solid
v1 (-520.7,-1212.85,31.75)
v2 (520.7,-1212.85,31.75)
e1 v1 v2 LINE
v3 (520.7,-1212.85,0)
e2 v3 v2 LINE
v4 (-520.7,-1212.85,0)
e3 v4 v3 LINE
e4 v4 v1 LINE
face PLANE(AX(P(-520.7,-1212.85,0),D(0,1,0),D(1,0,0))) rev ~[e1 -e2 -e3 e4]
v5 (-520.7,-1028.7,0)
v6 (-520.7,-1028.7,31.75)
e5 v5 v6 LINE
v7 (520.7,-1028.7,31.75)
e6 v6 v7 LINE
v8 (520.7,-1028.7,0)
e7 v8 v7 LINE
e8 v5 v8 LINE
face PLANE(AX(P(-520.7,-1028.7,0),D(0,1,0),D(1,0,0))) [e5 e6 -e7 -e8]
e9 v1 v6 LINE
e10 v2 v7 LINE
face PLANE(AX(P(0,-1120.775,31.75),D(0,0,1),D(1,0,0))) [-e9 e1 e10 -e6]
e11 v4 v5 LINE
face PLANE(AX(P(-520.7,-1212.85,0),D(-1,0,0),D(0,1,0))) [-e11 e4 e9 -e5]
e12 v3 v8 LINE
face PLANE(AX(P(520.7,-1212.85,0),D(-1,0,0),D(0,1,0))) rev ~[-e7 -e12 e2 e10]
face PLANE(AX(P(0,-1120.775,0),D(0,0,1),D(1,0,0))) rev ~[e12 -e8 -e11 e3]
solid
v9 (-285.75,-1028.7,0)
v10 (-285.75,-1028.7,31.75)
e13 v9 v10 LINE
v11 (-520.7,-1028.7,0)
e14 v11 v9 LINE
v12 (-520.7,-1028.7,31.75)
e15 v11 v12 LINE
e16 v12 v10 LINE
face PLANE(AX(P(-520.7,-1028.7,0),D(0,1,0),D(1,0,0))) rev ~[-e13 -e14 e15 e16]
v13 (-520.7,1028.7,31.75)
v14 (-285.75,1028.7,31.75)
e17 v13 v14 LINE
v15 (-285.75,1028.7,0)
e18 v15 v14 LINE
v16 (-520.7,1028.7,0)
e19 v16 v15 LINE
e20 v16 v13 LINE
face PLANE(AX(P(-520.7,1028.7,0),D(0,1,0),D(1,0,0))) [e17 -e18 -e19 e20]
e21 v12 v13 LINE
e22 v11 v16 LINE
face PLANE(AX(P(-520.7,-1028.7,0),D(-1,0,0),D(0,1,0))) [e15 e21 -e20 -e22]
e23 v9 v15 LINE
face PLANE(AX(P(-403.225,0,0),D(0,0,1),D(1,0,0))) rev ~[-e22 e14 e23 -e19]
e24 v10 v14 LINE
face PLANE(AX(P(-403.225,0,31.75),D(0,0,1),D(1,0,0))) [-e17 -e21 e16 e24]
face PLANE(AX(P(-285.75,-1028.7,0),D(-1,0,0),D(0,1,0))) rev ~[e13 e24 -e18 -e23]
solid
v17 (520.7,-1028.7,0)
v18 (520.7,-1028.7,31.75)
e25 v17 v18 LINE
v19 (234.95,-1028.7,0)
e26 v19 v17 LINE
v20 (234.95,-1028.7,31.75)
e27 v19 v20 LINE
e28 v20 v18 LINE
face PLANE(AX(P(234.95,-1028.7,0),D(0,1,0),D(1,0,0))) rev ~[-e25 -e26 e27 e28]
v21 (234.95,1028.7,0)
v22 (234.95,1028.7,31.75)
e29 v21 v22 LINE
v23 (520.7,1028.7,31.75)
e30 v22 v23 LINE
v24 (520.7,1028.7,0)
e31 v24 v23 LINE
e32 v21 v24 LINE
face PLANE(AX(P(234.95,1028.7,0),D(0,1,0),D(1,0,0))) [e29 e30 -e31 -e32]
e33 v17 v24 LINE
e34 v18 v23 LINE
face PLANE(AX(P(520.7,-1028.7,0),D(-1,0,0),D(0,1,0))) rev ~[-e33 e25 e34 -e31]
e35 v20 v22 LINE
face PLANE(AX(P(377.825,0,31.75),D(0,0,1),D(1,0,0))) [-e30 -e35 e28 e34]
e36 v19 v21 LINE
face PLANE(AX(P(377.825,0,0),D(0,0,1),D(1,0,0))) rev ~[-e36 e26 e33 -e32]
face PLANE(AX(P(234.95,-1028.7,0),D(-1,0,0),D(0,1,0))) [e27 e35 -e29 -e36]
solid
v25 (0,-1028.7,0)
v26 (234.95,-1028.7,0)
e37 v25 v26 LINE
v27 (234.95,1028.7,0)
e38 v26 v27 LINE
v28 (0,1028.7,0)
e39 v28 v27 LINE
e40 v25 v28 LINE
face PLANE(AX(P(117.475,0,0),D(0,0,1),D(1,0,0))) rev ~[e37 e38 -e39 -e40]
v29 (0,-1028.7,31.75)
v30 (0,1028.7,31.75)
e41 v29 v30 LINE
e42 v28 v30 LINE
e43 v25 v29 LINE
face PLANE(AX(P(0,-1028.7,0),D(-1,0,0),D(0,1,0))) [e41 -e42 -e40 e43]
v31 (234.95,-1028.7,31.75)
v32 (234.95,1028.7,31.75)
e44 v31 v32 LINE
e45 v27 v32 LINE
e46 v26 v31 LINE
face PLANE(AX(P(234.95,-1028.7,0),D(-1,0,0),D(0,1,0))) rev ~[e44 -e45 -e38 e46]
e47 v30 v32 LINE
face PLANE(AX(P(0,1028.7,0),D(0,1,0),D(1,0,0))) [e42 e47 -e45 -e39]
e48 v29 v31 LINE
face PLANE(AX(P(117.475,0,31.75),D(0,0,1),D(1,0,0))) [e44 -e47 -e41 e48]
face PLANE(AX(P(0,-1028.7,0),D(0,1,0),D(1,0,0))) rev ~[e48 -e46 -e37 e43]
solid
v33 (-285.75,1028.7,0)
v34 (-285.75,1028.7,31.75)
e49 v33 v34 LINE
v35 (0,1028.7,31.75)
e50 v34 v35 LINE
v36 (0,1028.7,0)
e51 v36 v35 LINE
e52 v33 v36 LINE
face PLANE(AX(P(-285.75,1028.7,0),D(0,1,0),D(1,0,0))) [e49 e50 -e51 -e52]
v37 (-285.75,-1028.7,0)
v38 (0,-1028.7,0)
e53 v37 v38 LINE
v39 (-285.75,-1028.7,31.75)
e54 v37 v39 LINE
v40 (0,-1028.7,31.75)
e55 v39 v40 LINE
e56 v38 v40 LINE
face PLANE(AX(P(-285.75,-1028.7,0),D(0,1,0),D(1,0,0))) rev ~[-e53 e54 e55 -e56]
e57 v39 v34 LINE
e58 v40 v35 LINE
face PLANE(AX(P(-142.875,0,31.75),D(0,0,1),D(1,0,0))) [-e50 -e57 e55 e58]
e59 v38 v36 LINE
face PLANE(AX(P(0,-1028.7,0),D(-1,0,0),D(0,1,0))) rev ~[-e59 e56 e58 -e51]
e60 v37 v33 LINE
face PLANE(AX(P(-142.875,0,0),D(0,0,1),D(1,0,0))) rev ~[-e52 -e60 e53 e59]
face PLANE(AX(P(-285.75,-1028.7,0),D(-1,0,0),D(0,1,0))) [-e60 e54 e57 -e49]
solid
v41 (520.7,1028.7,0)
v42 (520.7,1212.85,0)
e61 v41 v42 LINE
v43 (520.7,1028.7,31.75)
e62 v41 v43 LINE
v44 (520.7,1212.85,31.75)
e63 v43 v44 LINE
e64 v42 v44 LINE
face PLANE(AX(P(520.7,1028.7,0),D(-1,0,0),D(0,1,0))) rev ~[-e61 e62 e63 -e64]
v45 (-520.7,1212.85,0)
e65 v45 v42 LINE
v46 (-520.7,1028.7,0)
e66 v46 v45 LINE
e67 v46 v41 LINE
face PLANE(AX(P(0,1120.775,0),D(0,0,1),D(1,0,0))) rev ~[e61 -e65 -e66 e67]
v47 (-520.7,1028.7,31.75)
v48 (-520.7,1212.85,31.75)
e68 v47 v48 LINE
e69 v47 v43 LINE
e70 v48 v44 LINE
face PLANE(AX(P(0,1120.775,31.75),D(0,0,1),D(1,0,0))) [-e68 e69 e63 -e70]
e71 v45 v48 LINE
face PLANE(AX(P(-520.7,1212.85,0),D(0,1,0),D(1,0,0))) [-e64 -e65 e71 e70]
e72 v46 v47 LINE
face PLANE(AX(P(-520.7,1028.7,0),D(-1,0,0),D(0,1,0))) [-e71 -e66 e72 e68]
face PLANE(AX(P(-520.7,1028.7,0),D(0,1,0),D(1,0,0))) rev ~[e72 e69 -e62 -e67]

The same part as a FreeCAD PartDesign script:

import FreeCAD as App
import Part
import Sketcher
from FreeCAD import Vector
Q = App.Units.Quantity


def add_polygon(sketch, points):
    """Adds a closed chain of lines whose ends are joined by coincident constraints."""
    first, n = sketch.GeometryCount, len(points)
    for a, b in zip(points, points[1:] + points[:1]):
        sketch.addGeometry(Part.LineSegment(App.Vector(*a, 0), App.Vector(*b, 0)), False)
    for i in range(n):
        sketch.addConstraint(Sketcher.Constraint("Coincident", first + i, 2, first + (i + 1) % n, 1))

doc = App.newDocument("Part")
body = doc.addObject("PartDesign::Body", "Body")

sketch1 = body.newObject("Sketcher::SketchObject", "Sketch")
sketch1.AttachmentSupport = (doc.getObject("XY_Plane"), [""])
sketch1.MapMode = "FlatFace"
add_polygon(sketch1, [(-285.75, 1028.7), (-285.75, -1028.7), (0, -1028.7), (0, 1028.7)])
sketch1.addConstraint(Sketcher.Constraint("Vertical", 0))
sketch1.addConstraint(Sketcher.Constraint("Horizontal", 1))
sketch1.addConstraint(Sketcher.Constraint("Vertical", 2))
sketch1.addConstraint(Sketcher.Constraint("Horizontal", 3))
sketch1.addConstraint(Sketcher.Constraint("Symmetric", 1, 2, 2, 2, -1, 1))
sketch1.addConstraint(Sketcher.Constraint("DistanceY", 0, 2, 0, 1, Q("81 in")))
sketch1.addConstraint(Sketcher.Constraint("DistanceX", 1, 1, 1, 2, Q("11.25 in")))
pad1 = body.newObject("PartDesign::Pad", "Pad")
pad1.Profile = sketch1
pad1.Length = Q("1.25 in")
body2 = doc.addObject("PartDesign::Body", "Body001")

sketch2 = body2.newObject("Sketcher::SketchObject", "Sketch001")
sketch2.AttachmentSupport = (doc.getObject("XY_Plane001"), [""])
sketch2.MapMode = "FlatFace"
add_polygon(sketch2, [(0, 1028.7), (0, -1028.7), (234.95, -1028.7), (234.95, 1028.7)])
sketch2.addConstraint(Sketcher.Constraint("Vertical", 0))
sketch2.addConstraint(Sketcher.Constraint("Horizontal", 1))
sketch2.addConstraint(Sketcher.Constraint("Vertical", 2))
sketch2.addConstraint(Sketcher.Constraint("Horizontal", 3))
sketch2.addConstraint(Sketcher.Constraint("Symmetric", 0, 2, 3, 2, -1, 1))
sketch2.addConstraint(Sketcher.Constraint("DistanceY", 0, 2, 0, 1, Q("81 in")))
sketch2.addConstraint(Sketcher.Constraint("DistanceX", 1, 1, 1, 2, Q("9.25 in")))
pad2 = body2.newObject("PartDesign::Pad", "Pad001")
pad2.Profile = sketch2
pad2.Length = Q("1.25 in")
body3 = doc.addObject("PartDesign::Body", "Body002")

sketch3 = body3.newObject("Sketcher::SketchObject", "Sketch002")
sketch3.AttachmentSupport = (doc.getObject("XY_Plane002"), [""])
sketch3.MapMode = "FlatFace"
add_polygon(sketch3, [(234.95, 1028.7), (234.95, -1028.7), (520.7, -1028.7), (520.7, 1028.7)])
sketch3.addConstraint(Sketcher.Constraint("Vertical", 0))
sketch3.addConstraint(Sketcher.Constraint("Horizontal", 1))
sketch3.addConstraint(Sketcher.Constraint("Vertical", 2))
sketch3.addConstraint(Sketcher.Constraint("Horizontal", 3))
sketch3.addConstraint(Sketcher.Constraint("DistanceY", 0, 2, 0, 1, Q("81 in")))
sketch3.addConstraint(Sketcher.Constraint("DistanceX", 1, 1, 1, 2, Q("11.25 in")))
sketch3.addConstraint(Sketcher.Constraint("DistanceY", 0, 2, -1, 1, Q("40.5 in")))
sketch3.addConstraint(Sketcher.Constraint("DistanceX", -1, 1, 1, 2, Q("20.5 in")))
pad3 = body3.newObject("PartDesign::Pad", "Pad002")
pad3.Profile = sketch3
pad3.Length = Q("1.25 in")
body4 = doc.addObject("PartDesign::Body", "Body003")

sketch4 = body4.newObject("Sketcher::SketchObject", "Sketch003")
sketch4.AttachmentSupport = (doc.getObject("XY_Plane003"), [""])
sketch4.MapMode = "FlatFace"
add_polygon(sketch4, [(-520.7, 1028.7), (-520.7, -1028.7), (-285.75, -1028.7), (-285.75, 1028.7)])
sketch4.addConstraint(Sketcher.Constraint("Vertical", 0))
sketch4.addConstraint(Sketcher.Constraint("Horizontal", 1))
sketch4.addConstraint(Sketcher.Constraint("Vertical", 2))
sketch4.addConstraint(Sketcher.Constraint("Horizontal", 3))
sketch4.addConstraint(Sketcher.Constraint("DistanceY", 0, 2, 0, 1, Q("81 in")))
sketch4.addConstraint(Sketcher.Constraint("DistanceX", 1, 1, 1, 2, Q("9.25 in")))
sketch4.addConstraint(Sketcher.Constraint("DistanceX", 0, 2, -1, 1, Q("20.5 in")))
sketch4.addConstraint(Sketcher.Constraint("DistanceY", 0, 2, -1, 1, Q("40.5 in")))
pad4 = body4.newObject("PartDesign::Pad", "Pad003")
pad4.Profile = sketch4
pad4.Length = Q("1.25 in")
body5 = doc.addObject("PartDesign::Body", "Body004")

sketch5 = body5.newObject("Sketcher::SketchObject", "Sketch004")
sketch5.AttachmentSupport = (doc.getObject("XY_Plane004"), [""])
sketch5.MapMode = "FlatFace"
add_polygon(sketch5, [(-520.7, 1212.85), (-520.7, 1028.7), (520.7, 1028.7), (520.7, 1212.85)])
sketch5.addConstraint(Sketcher.Constraint("Vertical", 0))
sketch5.addConstraint(Sketcher.Constraint("Horizontal", 1))
sketch5.addConstraint(Sketcher.Constraint("Vertical", 2))
sketch5.addConstraint(Sketcher.Constraint("Horizontal", 3))
sketch5.addConstraint(Sketcher.Constraint("DistanceX", 1, 1, 1, 2, Q("41 in")))
sketch5.addConstraint(Sketcher.Constraint("DistanceY", 0, 2, 0, 1, Q("7.25 in")))
sketch5.addConstraint(Sketcher.Constraint("DistanceX", 0, 2, -1, 1, Q("20.5 in")))
sketch5.addConstraint(Sketcher.Constraint("DistanceY", -1, 1, 0, 2, Q("40.5 in")))
pad5 = body5.newObject("PartDesign::Pad", "Pad004")
pad5.Profile = sketch5
pad5.Length = Q("1.25 in")
body6 = doc.addObject("PartDesign::Body", "Body005")

sketch6 = body6.newObject("Sketcher::SketchObject", "Sketch005")
sketch6.AttachmentSupport = (doc.getObject("XY_Plane005"), [""])
sketch6.MapMode = "FlatFace"
add_polygon(sketch6, [(-520.7, -1028.7), (-520.7, -1212.85), (520.7, -1212.85), (520.7, -1028.7)])
sketch6.addConstraint(Sketcher.Constraint("Vertical", 0))
sketch6.addConstraint(Sketcher.Constraint("Horizontal", 1))
sketch6.addConstraint(Sketcher.Constraint("Vertical", 2))
sketch6.addConstraint(Sketcher.Constraint("Horizontal", 3))
sketch6.addConstraint(Sketcher.Constraint("DistanceX", 1, 1, 1, 2, Q("41 in")))
sketch6.addConstraint(Sketcher.Constraint("DistanceY", 0, 2, 0, 1, Q("7.25 in")))
sketch6.addConstraint(Sketcher.Constraint("DistanceX", 0, 2, -1, 1, Q("20.5 in")))
sketch6.addConstraint(Sketcher.Constraint("DistanceY", 2, 2, -1, 1, Q("40.5 in")))
pad6 = body6.newObject("PartDesign::Pad", "Pad005")
pad6.Profile = sketch6
pad6.Length = Q("1.25 in")

doc.recompute()
